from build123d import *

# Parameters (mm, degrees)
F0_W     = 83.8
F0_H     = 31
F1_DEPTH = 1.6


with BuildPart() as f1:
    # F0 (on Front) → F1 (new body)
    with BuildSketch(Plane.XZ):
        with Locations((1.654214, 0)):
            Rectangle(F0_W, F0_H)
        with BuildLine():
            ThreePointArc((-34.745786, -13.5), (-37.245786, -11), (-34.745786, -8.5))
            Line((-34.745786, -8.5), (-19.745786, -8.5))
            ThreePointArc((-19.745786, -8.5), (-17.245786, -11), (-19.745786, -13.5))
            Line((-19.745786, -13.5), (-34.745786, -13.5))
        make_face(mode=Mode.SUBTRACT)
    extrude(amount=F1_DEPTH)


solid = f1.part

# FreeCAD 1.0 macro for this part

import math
import FreeCAD as App
import Part
import Sketcher
from FreeCAD import Vector

doc = App.newDocument("Part")
body = doc.addObject("PartDesign::Body", "Body")

# Sketch on XZ plane
sketch1 = doc.addObject("Sketcher::SketchObject", "Sketch")
body.addObject(sketch1)
sketch1.AttachmentSupport = (doc.XZ_Plane, [""])
sketch1.MapMode = "FlatFace"
sketch1.addGeometry(Part.LineSegment(Vector(-40.2, 15.5, 0), Vector(-40.2, -15.5, 0)), False)
sketch1.addGeometry(Part.LineSegment(Vector(-40.2, -15.5, 0), Vector(43.6, -15.5, 0)), False)
sketch1.addGeometry(Part.LineSegment(Vector(43.6, -15.5, 0), Vector(43.6, 15.5, 0)), False)
sketch1.addGeometry(Part.LineSegment(Vector(43.6, 15.5, 0), Vector(-40.2, 15.5, 0)), False)
sketch1.addGeometry(Part.LineSegment(Vector(-19.7, -13.5, 0), Vector(-34.7, -13.5, 0)), False)
sketch1.addGeometry(Part.ArcOfCircle(Part.Circle(Vector(-34.7, -11, 0), Vector(0, 0, 1), 2.5), math.radians(90), math.radians(270)), False)
sketch1.addGeometry(Part.LineSegment(Vector(-34.7, -8.5, 0), Vector(-19.7, -8.5, 0)), False)
sketch1.addGeometry(Part.ArcOfCircle(Part.Circle(Vector(-19.7, -11, 0), Vector(0, 0, 1), 2.5), math.radians(-90), math.radians(90)), False)
sketch1.addConstraint(Sketcher.Constraint("Coincident", 0, 2, 1, 1))
sketch1.addConstraint(Sketcher.Constraint("Coincident", 1, 2, 2, 1))
sketch1.addConstraint(Sketcher.Constraint("Coincident", 2, 2, 3, 1))
sketch1.addConstraint(Sketcher.Constraint("Coincident", 3, 2, 0, 1))
sketch1.addConstraint(Sketcher.Constraint("Tangent", 4, 2, 5, 2))
sketch1.addConstraint(Sketcher.Constraint("Tangent", 5, 1, 6, 1))
sketch1.addConstraint(Sketcher.Constraint("Tangent", 6, 2, 7, 2))
sketch1.addConstraint(Sketcher.Constraint("Tangent", 7, 1, 4, 1))
sketch1.addConstraint(Sketcher.Constraint("Vertical", 0))
sketch1.addConstraint(Sketcher.Constraint("Horizontal", 1))
sketch1.addConstraint(Sketcher.Constraint("Vertical", 2))
sketch1.addConstraint(Sketcher.Constraint("Horizontal", 3))
sketch1.addConstraint(Sketcher.Constraint("Horizontal", 4))
sketch1.addConstraint(Sketcher.Constraint("Horizontal", 6))
sketch1.addConstraint(Sketcher.Constraint("Radius", 5, 2.5))
sketch1.addConstraint(Sketcher.Constraint("DistanceX", 4, 2, 4, 1, 15.0))
sketch1.addConstraint(Sketcher.Constraint("DistanceY", 0, 2, 0, 1, 31.0))
sketch1.addConstraint(Sketcher.Constraint("DistanceX", 1, 1, 1, 2, 83.8))
sketch1.addConstraint(Sketcher.Constraint("DistanceY", 5, 3, -1, 1, 11.0))
sketch1.addConstraint(Sketcher.Constraint("DistanceY", 0, 2, 4, 2, 2.0))
sketch1.addConstraint(Sketcher.Constraint("DistanceX", 0, 2, 5, 3, 5.5))
sketch1.addConstraint(Sketcher.Constraint("DistanceX", 5, 3, -1, 1, 34.745786))
pad1 = doc.addObject("PartDesign::Pad", "Pad")
body.addObject(pad1)
pad1.Profile = sketch1
pad1.Length = 1.6

doc.recompute()
